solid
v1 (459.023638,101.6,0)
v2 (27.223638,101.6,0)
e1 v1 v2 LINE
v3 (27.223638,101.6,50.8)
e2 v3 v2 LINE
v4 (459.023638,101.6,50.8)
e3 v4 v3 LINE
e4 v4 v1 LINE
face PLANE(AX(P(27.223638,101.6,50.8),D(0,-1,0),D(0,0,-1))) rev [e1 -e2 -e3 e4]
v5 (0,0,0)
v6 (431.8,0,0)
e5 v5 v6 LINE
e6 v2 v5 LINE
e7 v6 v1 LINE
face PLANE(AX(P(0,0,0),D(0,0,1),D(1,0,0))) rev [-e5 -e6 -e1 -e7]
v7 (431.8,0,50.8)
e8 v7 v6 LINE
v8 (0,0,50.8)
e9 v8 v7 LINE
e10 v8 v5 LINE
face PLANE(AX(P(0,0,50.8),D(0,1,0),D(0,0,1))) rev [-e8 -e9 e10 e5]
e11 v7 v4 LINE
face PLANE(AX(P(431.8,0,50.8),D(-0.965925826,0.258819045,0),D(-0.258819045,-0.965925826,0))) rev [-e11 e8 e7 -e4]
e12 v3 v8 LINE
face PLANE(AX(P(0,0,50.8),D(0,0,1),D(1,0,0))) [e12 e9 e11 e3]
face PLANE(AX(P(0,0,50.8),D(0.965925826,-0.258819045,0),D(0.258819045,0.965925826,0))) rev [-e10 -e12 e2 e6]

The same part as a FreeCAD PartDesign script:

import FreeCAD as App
import Part
import Sketcher

V = App.Vector
Q = App.Units.Quantity

doc = App.newDocument("Part")
body = doc.addObject("PartDesign::Body", "Body")

sketch1 = body.newObject("Sketcher::SketchObject", "Sketch")
sketch1.AttachmentSupport = (doc.getObject("XY_Plane"), [""])
sketch1.MapMode = "FlatFace"
sketch1.addGeometry([
    Part.LineSegment(V(27.223638, 101.6, 0), V(0, 0, 0)),
    Part.LineSegment(V(0, 0, 0), V(431.8, 0, 0)),
    Part.LineSegment(V(431.8, 0, 0), V(459.023638, 101.6, 0)),
    Part.LineSegment(V(459.023638, 101.6, 0), V(27.223638, 101.6, 0)),
], False)
sketch1.addConstraint([
    Sketcher.Constraint("Coincident", 0, 2, 1, 1),
    Sketcher.Constraint("Coincident", 1, 2, 2, 1),
    Sketcher.Constraint("Coincident", 2, 2, 3, 1),
    Sketcher.Constraint("Coincident", 3, 2, 0, 1),
    Sketcher.Constraint("Horizontal", 1),
    Sketcher.Constraint("Horizontal", 3),
    Sketcher.Constraint("Coincident", 0, 2, -1, 1),
    Sketcher.Constraint("Parallel", 0, 2),
    Sketcher.Constraint("DistanceX", 1, 1, 1, 2, Q("17 in")),
    Sketcher.Constraint("DistanceY", -1, 1, 2, 2, Q("4 in")),
    Sketcher.Constraint("Angle", 0, Q("-105 deg")),
])
pad1 = body.newObject("PartDesign::Pad", "Pad")
pad1.Profile = sketch1
pad1.Length = Q("2 in")

doc.recompute()
